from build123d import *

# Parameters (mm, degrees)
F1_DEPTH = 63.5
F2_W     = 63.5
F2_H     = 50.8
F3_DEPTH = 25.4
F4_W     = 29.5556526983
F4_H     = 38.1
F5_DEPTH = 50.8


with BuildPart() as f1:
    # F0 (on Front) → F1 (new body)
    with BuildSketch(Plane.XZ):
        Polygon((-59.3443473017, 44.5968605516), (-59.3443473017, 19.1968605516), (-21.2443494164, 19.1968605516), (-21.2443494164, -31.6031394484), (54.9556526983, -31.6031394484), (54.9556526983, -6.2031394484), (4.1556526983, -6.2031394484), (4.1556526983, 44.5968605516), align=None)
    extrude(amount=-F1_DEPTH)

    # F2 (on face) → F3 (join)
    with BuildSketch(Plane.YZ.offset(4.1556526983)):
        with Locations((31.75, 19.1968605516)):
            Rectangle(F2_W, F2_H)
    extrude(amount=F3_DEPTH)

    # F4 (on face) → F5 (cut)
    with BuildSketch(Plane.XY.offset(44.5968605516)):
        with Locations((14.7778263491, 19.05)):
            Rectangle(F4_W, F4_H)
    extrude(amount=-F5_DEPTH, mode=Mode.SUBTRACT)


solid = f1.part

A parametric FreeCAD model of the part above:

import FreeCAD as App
import Part
import Sketcher
from FreeCAD import Vector
Q = App.Units.Quantity


def add_polygon(sketch, points):
    """Adds a closed chain of lines whose ends are joined by coincident constraints."""
    first, n = sketch.GeometryCount, len(points)
    for a, b in zip(points, points[1:] + points[:1]):
        sketch.addGeometry(Part.LineSegment(App.Vector(*a, 0), App.Vector(*b, 0)), False)
    for i in range(n):
        sketch.addConstraint(Sketcher.Constraint("Coincident", first + i, 2, first + (i + 1) % n, 1))

doc = App.newDocument("Part")
body = doc.addObject("PartDesign::Body", "Body")

# Sketch on XZ plane
sketch1 = doc.addObject("Sketcher::SketchObject", "Sketch")
body.addObject(sketch1)
sketch1.AttachmentSupport = (doc.XZ_Plane, [""])
sketch1.MapMode = "FlatFace"
add_polygon(sketch1, [(-59, 45), (-59, 19), (-21, 19), (-21, -32), (55, -32), (55, -6), (4, -6), (4, 45)])  # lines 0-7
sketch1.addConstraint(Sketcher.Constraint("Vertical", 0))
sketch1.addConstraint(Sketcher.Constraint("Horizontal", 1))
sketch1.addConstraint(Sketcher.Constraint("Vertical", 2))
sketch1.addConstraint(Sketcher.Constraint("Horizontal", 3))
sketch1.addConstraint(Sketcher.Constraint("Vertical", 4))
sketch1.addConstraint(Sketcher.Constraint("Horizontal", 5))
sketch1.addConstraint(Sketcher.Constraint("Vertical", 6))
sketch1.addConstraint(Sketcher.Constraint("Horizontal", 7))
sketch1.addConstraint(Sketcher.Constraint("Equal", 5, 2))
sketch1.addConstraint(Sketcher.Constraint("Equal", 0, 4))
sketch1.addConstraint(Sketcher.Constraint("DistanceX", 3, 1, 3, 2, Q("3.0000001 in")))
sketch1.addConstraint(Sketcher.Constraint("DistanceX", 5, 2, 5, 1, Q("2 in")))
sketch1.addConstraint(Sketcher.Constraint("DistanceY", 0, 2, 0, 1, Q("1 in")))
sketch1.addConstraint(Sketcher.Constraint("DistanceX", 1, 1, 1, 2, Q("1.4999999 in")))
sketch1.addConstraint(Sketcher.Constraint("DistanceY", -1, 1, 0, 2, Q("19.196861 mm")))
sketch1.addConstraint(Sketcher.Constraint("DistanceX", 1, 2, -1, 1, Q("21.244349 mm")))
pad1 = doc.addObject("PartDesign::Pad", "Pad")
body.addObject(pad1)
pad1.Profile = sketch1
pad1.Length = Q("2.5 in")
pad1.Reversed = True

# Sketch on YZ plane
sketch2 = doc.addObject("Sketcher::SketchObject", "Sketch001")
body.addObject(sketch2)
sketch2.AttachmentSupport = (doc.YZ_Plane, [""])
sketch2.MapMode = "FlatFace"
sketch2.AttachmentOffset = App.Placement(Vector(0, 0, 4.155653), App.Rotation())
add_polygon(sketch2, [(0, 45), (0, -6), (64, -6), (64, 45)])  # lines 0-3
sketch2.addConstraint(Sketcher.Constraint("Vertical", 0))
sketch2.addConstraint(Sketcher.Constraint("Horizontal", 1))
sketch2.addConstraint(Sketcher.Constraint("Vertical", 2))
sketch2.addConstraint(Sketcher.Constraint("Horizontal", 3))
sketch2.addConstraint(Sketcher.Constraint("PointOnObject", 0, 2, -2))
sketch2.addConstraint(Sketcher.Constraint("DistanceY", 0, 2, 0, 1, Q("2 in")))
sketch2.addConstraint(Sketcher.Constraint("DistanceX", 1, 1, 1, 2, Q("2.5 in")))
sketch2.addConstraint(Sketcher.Constraint("DistanceY", 0, 2, -1, 1, Q("6.203139 mm")))
pad2 = doc.addObject("PartDesign::Pad", "Pad001")
body.addObject(pad2)
pad2.Profile = sketch2
pad2.Length = Q("1 in")

# Sketch on XY plane
sketch3 = doc.addObject("Sketcher::SketchObject", "Sketch002")
body.addObject(sketch3)
sketch3.AttachmentSupport = (doc.XY_Plane, [""])
sketch3.MapMode = "FlatFace"
sketch3.AttachmentOffset = App.Placement(Vector(0, 0, 44.596861), App.Rotation())
add_polygon(sketch3, [(0, 38), (0, 0), (30, 0), (30, 38)])  # lines 0-3
sketch3.addConstraint(Sketcher.Constraint("Vertical", 0))
sketch3.addConstraint(Sketcher.Constraint("Horizontal", 1))
sketch3.addConstraint(Sketcher.Constraint("Vertical", 2))
sketch3.addConstraint(Sketcher.Constraint("Horizontal", 3))
sketch3.addConstraint(Sketcher.Constraint("Coincident", 0, 2, -1, 1))
sketch3.addConstraint(Sketcher.Constraint("DistanceY", 0, 2, 0, 1, Q("1.5 in")))
sketch3.addConstraint(Sketcher.Constraint("DistanceX", 1, 1, 1, 2, Q("29.555653 mm")))
pocket1 = doc.addObject("PartDesign::Pocket", "Pocket")
body.addObject(pocket1)
pocket1.Profile = sketch3
pocket1.Length = Q("2 in")

doc.recompute()
